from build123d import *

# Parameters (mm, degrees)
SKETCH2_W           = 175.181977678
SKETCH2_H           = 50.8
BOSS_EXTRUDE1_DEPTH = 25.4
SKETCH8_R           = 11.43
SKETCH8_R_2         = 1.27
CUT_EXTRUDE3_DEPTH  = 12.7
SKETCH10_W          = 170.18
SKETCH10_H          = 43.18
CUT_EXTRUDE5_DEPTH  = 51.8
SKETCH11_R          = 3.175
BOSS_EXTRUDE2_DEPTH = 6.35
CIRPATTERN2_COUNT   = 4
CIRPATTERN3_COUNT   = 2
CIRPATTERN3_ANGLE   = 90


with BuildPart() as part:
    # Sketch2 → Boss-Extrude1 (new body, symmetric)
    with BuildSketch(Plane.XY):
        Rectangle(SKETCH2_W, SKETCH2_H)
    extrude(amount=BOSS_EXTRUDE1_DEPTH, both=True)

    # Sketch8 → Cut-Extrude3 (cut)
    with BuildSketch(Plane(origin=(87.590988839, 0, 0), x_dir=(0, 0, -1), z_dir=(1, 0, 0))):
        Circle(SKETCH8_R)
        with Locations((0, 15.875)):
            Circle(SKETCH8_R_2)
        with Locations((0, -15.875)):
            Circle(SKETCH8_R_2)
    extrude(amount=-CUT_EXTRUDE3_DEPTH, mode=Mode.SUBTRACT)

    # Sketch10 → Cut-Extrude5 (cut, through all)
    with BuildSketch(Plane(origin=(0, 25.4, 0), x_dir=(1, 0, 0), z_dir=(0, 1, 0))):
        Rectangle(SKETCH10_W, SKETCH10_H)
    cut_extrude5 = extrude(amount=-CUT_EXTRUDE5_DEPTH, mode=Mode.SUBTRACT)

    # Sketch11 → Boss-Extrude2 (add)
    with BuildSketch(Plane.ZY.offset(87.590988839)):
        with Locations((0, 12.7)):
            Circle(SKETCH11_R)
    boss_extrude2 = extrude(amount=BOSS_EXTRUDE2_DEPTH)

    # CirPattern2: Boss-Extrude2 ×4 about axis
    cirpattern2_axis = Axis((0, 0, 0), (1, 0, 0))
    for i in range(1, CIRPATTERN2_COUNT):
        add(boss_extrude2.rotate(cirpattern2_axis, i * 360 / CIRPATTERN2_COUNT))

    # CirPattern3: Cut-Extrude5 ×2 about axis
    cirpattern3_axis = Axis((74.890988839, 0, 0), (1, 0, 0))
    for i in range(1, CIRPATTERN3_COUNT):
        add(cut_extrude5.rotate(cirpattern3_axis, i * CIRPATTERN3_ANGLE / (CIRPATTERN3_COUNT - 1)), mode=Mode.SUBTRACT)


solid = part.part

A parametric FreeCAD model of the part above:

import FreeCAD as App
import Part
import Sketcher
Q = App.Units.Quantity


def add_polygon(sketch, points):
    """Adds a closed chain of lines whose ends are joined by coincident constraints."""
    first, n = sketch.GeometryCount, len(points)
    for a, b in zip(points, points[1:] + points[:1]):
        sketch.addGeometry(Part.LineSegment(App.Vector(*a, 0), App.Vector(*b, 0)), False)
    for i in range(n):
        sketch.addConstraint(Sketcher.Constraint("Coincident", first + i, 2, first + (i + 1) % n, 1))

doc = App.newDocument("Part")
body = doc.addObject("PartDesign::Body", "Body")

# Sketch on XY plane
sketch1 = doc.addObject("Sketcher::SketchObject", "Sketch")
body.addObject(sketch1)
sketch1.AttachmentSupport = (doc.XY_Plane, [""])
sketch1.MapMode = "FlatFace"
add_polygon(sketch1, [(-88, 25), (-88, -25), (88, -25), (88, 25)])  # lines 0-3
sketch1.addConstraint([
    Sketcher.Constraint("Vertical", 0),
    Sketcher.Constraint("Horizontal", 1),
    Sketcher.Constraint("Vertical", 2),
    Sketcher.Constraint("Horizontal", 3),
    Sketcher.Constraint("Symmetric", 0, 2, 2, 2, -1, 1),
    Sketcher.Constraint("DistanceY", 0, 2, 0, 1, Q("2 in")),
    Sketcher.Constraint("DistanceX", 1, 1, 1, 2, 175.181978),
])
pad1 = doc.addObject("PartDesign::Pad", "Pad")
body.addObject(pad1)
pad1.Profile = sketch1
pad1.Length = Q("2 in")
pad1.Midplane = True

# Sketch on YZ plane
sketch2 = doc.addObject("Sketcher::SketchObject", "Sketch001")
body.addObject(sketch2)
sketch2.AttachmentSupport = (doc.YZ_Plane, [""])
sketch2.MapMode = "FlatFace"
sketch2.AttachmentOffset = App.Placement(App.Vector(0, 0, 87.590989), App.Rotation())
sketch2.addGeometry([
    Part.Circle(App.Vector(0, 0, 0), App.Vector(0, 0, 1), 11.4),
    Part.Circle(App.Vector(15.9, 0, 0), App.Vector(0, 0, 1), 1.3),
    Part.Circle(App.Vector(-15.9, 0, 0), App.Vector(0, 0, 1), 1.3),
], False)
sketch2.addConstraint([
    Sketcher.Constraint("Coincident", 0, 3, -1, 1),
    Sketcher.Constraint("Equal", 1, 2),
    Sketcher.Constraint("Symmetric", 1, 3, 2, 3, -1, 1),
    Sketcher.Constraint("PointOnObject", 1, 3, -1),
    Sketcher.Constraint("Diameter", 0, Q("0.9 in")),
    Sketcher.Constraint("Diameter", 1, Q("0.1 in")),
    Sketcher.Constraint("DistanceX", 2, 3, 1, 3, Q("1.25 in")),
])
pocket1 = doc.addObject("PartDesign::Pocket", "Pocket")
body.addObject(pocket1)
pocket1.Profile = sketch2
pocket1.Length = Q("0.5 in")

# Sketch on XZ plane
sketch3 = doc.addObject("Sketcher::SketchObject", "Sketch002")
body.addObject(sketch3)
sketch3.AttachmentSupport = (doc.XZ_Plane, [""])
sketch3.MapMode = "FlatFace"
sketch3.AttachmentOffset = App.Placement(App.Vector(0, 0, -1 * 25.4), App.Rotation())
add_polygon(sketch3, [(-85, -22), (-85, 22), (85, 22), (85, -22)])  # lines 0-3
sketch3.addConstraint([
    Sketcher.Constraint("Vertical", 0),
    Sketcher.Constraint("Horizontal", 1),
    Sketcher.Constraint("Vertical", 2),
    Sketcher.Constraint("Horizontal", 3),
    Sketcher.Constraint("Symmetric", 0, 2, 2, 2, -1, 1),
    Sketcher.Constraint("DistanceX", 1, 1, 1, 2, Q("6.7 in")),
    Sketcher.Constraint("DistanceY", 0, 1, 0, 2, Q("1.7 in")),
])
pocket2 = doc.addObject("PartDesign::Pocket", "Pocket001")
body.addObject(pocket2)
pocket2.Profile = sketch3
pocket2.Type = "ThroughAll"
pocket2.Reversed = True

# Sketch on YZ plane
sketch4 = doc.addObject("Sketcher::SketchObject", "Sketch003")
body.addObject(sketch4)
sketch4.AttachmentSupport = (doc.YZ_Plane, [""])
sketch4.MapMode = "FlatFace"
sketch4.AttachmentOffset = App.Placement(App.Vector(0, 0, -87.590989), App.Rotation())
sketch4.addGeometry(Part.Circle(App.Vector(12.7, 0, 0), App.Vector(0, 0, 1), 3.2), False)
sketch4.addConstraint([
    Sketcher.Constraint("PointOnObject", 0, 3, -1),
    Sketcher.Constraint("Diameter", 0, Q("0.25 in")),
    Sketcher.Constraint("DistanceX", -1, 1, 0, 3, Q("0.5 in")),
])
pad2 = doc.addObject("PartDesign::Pad", "Pad001")
body.addObject(pad2)
pad2.Profile = sketch4
pad2.Length = Q("0.25 in")
pad2.Reversed = True
doc.recompute()

polarpattern = doc.addObject("PartDesign::PolarPattern", "PolarPattern")
body.addObject(polarpattern)
polarpattern.Originals = [pad2]
polarpattern.Axis = (doc.X_Axis, [""])
polarpattern.Angle = 360
polarpattern.Occurrences = 4
body.Tip = polarpattern
doc.recompute()

polarpattern2 = doc.addObject("PartDesign::PolarPattern", "PolarPattern001")
body.addObject(polarpattern2)
polarpattern2.Originals = [pocket2]
polarpattern2.Axis = (doc.X_Axis, [""])
polarpattern2.Angle = 90
polarpattern2.Occurrences = 2
body.Tip = polarpattern2

doc.recompute()
